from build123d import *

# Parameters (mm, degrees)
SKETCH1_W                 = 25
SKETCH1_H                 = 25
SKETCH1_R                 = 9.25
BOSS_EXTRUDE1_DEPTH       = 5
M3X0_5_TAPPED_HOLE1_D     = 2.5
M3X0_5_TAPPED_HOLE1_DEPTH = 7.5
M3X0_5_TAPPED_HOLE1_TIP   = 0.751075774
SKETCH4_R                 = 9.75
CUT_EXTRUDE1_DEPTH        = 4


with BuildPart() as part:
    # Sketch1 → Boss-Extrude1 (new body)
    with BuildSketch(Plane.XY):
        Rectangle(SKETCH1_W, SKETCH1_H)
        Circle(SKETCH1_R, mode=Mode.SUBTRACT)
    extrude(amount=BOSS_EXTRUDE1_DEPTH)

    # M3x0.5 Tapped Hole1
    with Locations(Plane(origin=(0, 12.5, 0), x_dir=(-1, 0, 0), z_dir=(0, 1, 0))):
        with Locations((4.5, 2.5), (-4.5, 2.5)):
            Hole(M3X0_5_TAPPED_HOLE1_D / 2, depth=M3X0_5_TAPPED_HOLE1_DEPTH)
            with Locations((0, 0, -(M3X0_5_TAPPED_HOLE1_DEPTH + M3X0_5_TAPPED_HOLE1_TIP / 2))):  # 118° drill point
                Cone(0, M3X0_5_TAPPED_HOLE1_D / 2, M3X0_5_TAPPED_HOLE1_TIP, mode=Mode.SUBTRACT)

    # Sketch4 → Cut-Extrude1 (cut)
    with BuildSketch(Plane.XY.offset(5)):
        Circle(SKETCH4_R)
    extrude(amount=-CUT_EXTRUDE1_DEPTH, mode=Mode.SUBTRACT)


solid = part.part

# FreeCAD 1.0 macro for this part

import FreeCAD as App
import Part
import Sketcher
from FreeCAD import Vector
Q = App.Units.Quantity

doc = App.newDocument("Part")
body = doc.addObject("PartDesign::Body", "Body")

sketch1 = body.newObject("Sketcher::SketchObject", "Sketch")
sketch1.AttachmentSupport = (doc.getObject("XY_Plane"), [""])
sketch1.MapMode = "FlatFace"
sketch1.addGeometry(Part.LineSegment(Vector(-12, 12, 0), Vector(-12, -12, 0)), False)
sketch1.addGeometry(Part.LineSegment(Vector(-12, -12, 0), Vector(12, -12, 0)), False)
sketch1.addGeometry(Part.LineSegment(Vector(12, -12, 0), Vector(12, 12, 0)), False)
sketch1.addGeometry(Part.LineSegment(Vector(12, 12, 0), Vector(-12, 12, 0)), False)
sketch1.addGeometry(Part.Circle(Vector(0, 0, 0), Vector(0, 0, 1), 9), False)
sketch1.addConstraint(Sketcher.Constraint("Coincident", 0, 2, 1, 1))
sketch1.addConstraint(Sketcher.Constraint("Coincident", 1, 2, 2, 1))
sketch1.addConstraint(Sketcher.Constraint("Coincident", 2, 2, 3, 1))
sketch1.addConstraint(Sketcher.Constraint("Coincident", 3, 2, 0, 1))
sketch1.addConstraint(Sketcher.Constraint("Vertical", 0))
sketch1.addConstraint(Sketcher.Constraint("Horizontal", 1))
sketch1.addConstraint(Sketcher.Constraint("Vertical", 2))
sketch1.addConstraint(Sketcher.Constraint("Horizontal", 3))
sketch1.addConstraint(Sketcher.Constraint("Coincident", 4, 3, -1, 1))
sketch1.addConstraint(Sketcher.Constraint("Symmetric", 0, 2, 2, 2, -1, 1))
sketch1.addConstraint(Sketcher.Constraint("Equal", 3, 0))
sketch1.addConstraint(Sketcher.Constraint("Diameter", 4, Q("18.5 mm")))
sketch1.addConstraint(Sketcher.Constraint("DistanceX", 1, 1, 1, 2, Q("25 mm")))
pad1 = body.newObject("PartDesign::Pad", "Pad")
pad1.Profile = sketch1
pad1.Length = 5

sketch2 = body.newObject("Sketcher::SketchObject", "Sketch001")
sketch2.AttachmentSupport = (doc.getObject("XZ_Plane"), [""])
sketch2.MapMode = "FlatFace"
sketch2.AttachmentOffset = App.Placement(Vector(0, 0, -12.5), App.Rotation())
sketch2.addGeometry(Part.Circle(Vector(-4.5, 2.5, 0), Vector(0, 0, 1), 1.2), False)
sketch2.addGeometry(Part.Circle(Vector(4.5, 2.5, 0), Vector(0, 0, 1), 1.2), False)
sketch2.addConstraint(Sketcher.Constraint("Equal", 0, 1))
sketch2.addConstraint(Sketcher.Constraint("Symmetric", 0, 3, 1, 3, -2))
sketch2.addConstraint(Sketcher.Constraint("Diameter", 0, Q("2.5 mm")))
sketch2.addConstraint(Sketcher.Constraint("DistanceX", 0, 3, 1, 3, Q("9 mm")))
sketch2.addConstraint(Sketcher.Constraint("DistanceY", -1, 1, 0, 3, Q("2.5 mm")))
doc.recompute()
hole = body.newObject("PartDesign::Hole", "Hole")
hole.Profile = sketch2
hole.ThreadType = "None"
hole.Diameter = 2.5
hole.DepthType = "Dimension"
hole.Depth = 7.5
hole.DrillPoint = "Angled"
hole.DrillPointAngle = 118
hole.Reversed = True

sketch3 = body.newObject("Sketcher::SketchObject", "Sketch002")
sketch3.AttachmentSupport = (doc.getObject("XY_Plane"), [""])
sketch3.MapMode = "FlatFace"
sketch3.AttachmentOffset = App.Placement(Vector(0, 0, 5), App.Rotation())
sketch3.addGeometry(Part.Circle(Vector(0, 0, 0), Vector(0, 0, 1), 10), False)
sketch3.addConstraint(Sketcher.Constraint("Coincident", 0, 3, -1, 1))
sketch3.addConstraint(Sketcher.Constraint("Diameter", 0, Q("19.5 mm")))
pocket1 = body.newObject("PartDesign::Pocket", "Pocket")
pocket1.Profile = sketch3
pocket1.Length = 4

doc.recompute()
